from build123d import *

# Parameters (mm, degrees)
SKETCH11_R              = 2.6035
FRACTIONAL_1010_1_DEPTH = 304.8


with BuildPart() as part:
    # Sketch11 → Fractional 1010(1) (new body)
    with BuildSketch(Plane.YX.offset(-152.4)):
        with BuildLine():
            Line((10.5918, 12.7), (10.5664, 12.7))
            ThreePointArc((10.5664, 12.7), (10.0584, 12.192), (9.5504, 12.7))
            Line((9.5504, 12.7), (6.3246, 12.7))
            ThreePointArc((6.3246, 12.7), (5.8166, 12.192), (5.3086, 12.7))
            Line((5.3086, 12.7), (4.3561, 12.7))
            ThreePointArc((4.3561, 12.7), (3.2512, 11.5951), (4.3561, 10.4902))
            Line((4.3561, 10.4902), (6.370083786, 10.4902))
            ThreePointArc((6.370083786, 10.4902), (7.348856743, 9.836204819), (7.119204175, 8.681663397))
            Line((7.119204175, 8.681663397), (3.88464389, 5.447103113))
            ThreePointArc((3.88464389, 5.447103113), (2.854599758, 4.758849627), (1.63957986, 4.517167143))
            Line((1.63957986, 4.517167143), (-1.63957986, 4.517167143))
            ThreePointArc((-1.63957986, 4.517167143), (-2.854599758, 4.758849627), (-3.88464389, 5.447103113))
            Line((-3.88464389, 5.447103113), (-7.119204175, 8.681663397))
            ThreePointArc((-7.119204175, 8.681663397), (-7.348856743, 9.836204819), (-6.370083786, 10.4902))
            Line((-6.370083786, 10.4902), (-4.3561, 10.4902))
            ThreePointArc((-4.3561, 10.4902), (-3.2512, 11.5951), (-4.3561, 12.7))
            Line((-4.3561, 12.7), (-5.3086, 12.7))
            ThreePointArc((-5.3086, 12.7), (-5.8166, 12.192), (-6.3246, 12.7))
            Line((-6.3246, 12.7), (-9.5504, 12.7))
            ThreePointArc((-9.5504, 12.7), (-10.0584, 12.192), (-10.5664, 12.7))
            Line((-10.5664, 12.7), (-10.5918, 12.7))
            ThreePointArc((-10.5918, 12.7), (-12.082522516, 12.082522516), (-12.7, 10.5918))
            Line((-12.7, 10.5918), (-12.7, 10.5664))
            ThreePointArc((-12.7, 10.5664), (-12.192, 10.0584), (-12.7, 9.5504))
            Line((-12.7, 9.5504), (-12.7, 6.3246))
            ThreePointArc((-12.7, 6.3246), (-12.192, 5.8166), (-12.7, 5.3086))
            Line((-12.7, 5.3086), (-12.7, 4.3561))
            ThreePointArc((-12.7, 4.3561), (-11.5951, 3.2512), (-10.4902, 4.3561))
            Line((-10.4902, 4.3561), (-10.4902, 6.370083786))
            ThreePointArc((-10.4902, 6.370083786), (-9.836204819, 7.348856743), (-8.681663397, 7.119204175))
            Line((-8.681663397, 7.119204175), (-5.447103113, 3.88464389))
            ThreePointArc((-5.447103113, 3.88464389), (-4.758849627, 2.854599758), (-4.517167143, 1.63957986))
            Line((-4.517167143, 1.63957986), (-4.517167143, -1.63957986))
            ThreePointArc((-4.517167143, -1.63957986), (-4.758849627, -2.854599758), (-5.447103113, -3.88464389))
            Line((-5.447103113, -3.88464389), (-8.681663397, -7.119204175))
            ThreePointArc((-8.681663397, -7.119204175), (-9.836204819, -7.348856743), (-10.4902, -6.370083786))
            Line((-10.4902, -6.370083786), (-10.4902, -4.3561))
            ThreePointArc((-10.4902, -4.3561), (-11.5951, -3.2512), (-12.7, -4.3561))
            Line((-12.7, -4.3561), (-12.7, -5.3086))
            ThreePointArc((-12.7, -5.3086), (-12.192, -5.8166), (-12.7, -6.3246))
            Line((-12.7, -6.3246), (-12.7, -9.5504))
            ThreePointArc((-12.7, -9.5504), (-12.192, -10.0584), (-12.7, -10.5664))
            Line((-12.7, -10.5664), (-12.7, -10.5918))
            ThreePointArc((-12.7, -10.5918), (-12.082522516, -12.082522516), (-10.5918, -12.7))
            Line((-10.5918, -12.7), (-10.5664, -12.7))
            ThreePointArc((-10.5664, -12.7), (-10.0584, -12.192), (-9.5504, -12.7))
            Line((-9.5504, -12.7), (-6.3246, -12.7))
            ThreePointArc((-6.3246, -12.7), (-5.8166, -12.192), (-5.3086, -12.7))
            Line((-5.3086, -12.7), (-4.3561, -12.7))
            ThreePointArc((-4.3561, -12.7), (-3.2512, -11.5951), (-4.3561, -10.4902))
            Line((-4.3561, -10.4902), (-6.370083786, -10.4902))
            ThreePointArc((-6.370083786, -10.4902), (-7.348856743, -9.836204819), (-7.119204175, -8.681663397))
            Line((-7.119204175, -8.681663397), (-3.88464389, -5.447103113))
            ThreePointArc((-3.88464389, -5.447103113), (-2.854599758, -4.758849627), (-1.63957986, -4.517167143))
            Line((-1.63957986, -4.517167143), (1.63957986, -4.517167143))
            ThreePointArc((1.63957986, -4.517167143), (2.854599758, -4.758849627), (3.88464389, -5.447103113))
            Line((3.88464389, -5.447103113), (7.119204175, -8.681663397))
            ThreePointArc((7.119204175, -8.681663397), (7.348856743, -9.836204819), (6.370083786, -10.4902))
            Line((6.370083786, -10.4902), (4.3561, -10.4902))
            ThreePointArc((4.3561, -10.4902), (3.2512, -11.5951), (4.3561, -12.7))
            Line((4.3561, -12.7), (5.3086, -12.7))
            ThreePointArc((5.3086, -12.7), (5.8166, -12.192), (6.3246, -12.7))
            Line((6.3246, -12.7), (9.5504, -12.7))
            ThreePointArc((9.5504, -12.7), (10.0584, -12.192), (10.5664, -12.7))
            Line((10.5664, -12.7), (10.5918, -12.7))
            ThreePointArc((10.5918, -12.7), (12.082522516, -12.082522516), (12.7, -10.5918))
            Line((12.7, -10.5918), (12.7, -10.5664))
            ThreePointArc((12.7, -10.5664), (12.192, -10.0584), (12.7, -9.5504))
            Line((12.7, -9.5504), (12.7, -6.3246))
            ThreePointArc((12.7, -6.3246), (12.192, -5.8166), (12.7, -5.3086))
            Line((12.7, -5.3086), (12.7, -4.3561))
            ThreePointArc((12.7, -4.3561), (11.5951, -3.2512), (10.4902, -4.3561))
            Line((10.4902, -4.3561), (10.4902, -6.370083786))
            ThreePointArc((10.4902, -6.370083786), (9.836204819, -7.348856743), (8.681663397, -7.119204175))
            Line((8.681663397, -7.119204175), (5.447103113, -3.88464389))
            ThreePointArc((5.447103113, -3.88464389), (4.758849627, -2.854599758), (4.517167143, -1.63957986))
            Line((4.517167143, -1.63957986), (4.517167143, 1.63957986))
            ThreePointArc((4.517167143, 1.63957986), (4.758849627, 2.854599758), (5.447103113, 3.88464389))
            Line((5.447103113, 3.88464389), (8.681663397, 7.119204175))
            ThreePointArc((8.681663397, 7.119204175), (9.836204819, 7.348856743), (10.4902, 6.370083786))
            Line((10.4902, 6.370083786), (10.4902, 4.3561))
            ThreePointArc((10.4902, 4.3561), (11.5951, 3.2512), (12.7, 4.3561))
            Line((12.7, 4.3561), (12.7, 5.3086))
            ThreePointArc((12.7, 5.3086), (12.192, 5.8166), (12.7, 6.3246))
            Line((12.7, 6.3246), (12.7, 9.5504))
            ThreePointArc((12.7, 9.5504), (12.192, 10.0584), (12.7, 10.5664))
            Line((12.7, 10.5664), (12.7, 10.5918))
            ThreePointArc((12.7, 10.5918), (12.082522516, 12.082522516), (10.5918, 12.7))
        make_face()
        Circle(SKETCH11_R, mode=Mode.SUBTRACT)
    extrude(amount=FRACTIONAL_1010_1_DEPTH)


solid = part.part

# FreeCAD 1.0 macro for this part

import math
import FreeCAD as App
import Part
import Sketcher
Q = App.Units.Quantity

doc = App.newDocument("Part")
params = doc.addObject("Spreadsheet::Sheet", "Params")
for row, (alias, value) in enumerate([
    ("sketch1_radius", "0.02 in"),
    ("sketch1_diameter", "0.205 in"),
    ("sketch1_radius2", "0.125 in"),
    ("sketch1_radius3", "0.083 in"),
    ("sketch1_width", "0.001 in"),
    ("pad1_length", "12 in"),
], start=1):
    params.set(f"A{row}", alias)
    params.set(f"B{row}", "=" + value)
    params.setAlias(f"B{row}", alias)

body = doc.addObject("PartDesign::Body", "Body")

sketch1 = body.newObject("Sketcher::SketchObject", "Sketch")
sketch1.AttachmentSupport = (doc.getObject("XY_Plane"), [""])
sketch1.MapMode = "FlatFace"
sketch1.AttachmentOffset = App.Placement(App.Vector(0, 0, 6 * 25.4), App.Rotation())
sketch1.addGeometry(Part.LineSegment(App.Vector(12.7, 10.592, 0), App.Vector(12.7, 10.566, 0)), False)
sketch1.addGeometry(Part.ArcOfCircle(Part.Circle(App.Vector(12.7, 10.058, 0), App.Vector(0, 0, 1), 0.508), math.radians(90), math.radians(270)), False)
sketch1.addGeometry(Part.LineSegment(App.Vector(12.7, 9.55, 0), App.Vector(12.7, 6.325, 0)), False)
sketch1.addGeometry(Part.ArcOfCircle(Part.Circle(App.Vector(12.7, 5.817, 0), App.Vector(0, 0, 1), 0.508), math.radians(90), math.radians(270)), False)
sketch1.addGeometry(Part.LineSegment(App.Vector(12.7, 5.309, 0), App.Vector(12.7, 4.356, 0)), False)
sketch1.addGeometry(Part.ArcOfCircle(Part.Circle(App.Vector(11.595, 4.356, 0), App.Vector(0, 0, 1), 1.105), math.radians(180), math.radians(360)), False)
sketch1.addGeometry(Part.LineSegment(App.Vector(10.49, 4.356, 0), App.Vector(10.49, 6.37, 0)), False)
sketch1.addGeometry(Part.ArcOfCircle(Part.Circle(App.Vector(9.431, 6.37, 0), App.Vector(0, 0, 1), 1.059), math.radians(0), math.radians(135)), False)
sketch1.addGeometry(Part.LineSegment(App.Vector(8.682, 7.119, 0), App.Vector(5.447, 3.885, 0)), False)
sketch1.addGeometry(Part.ArcOfCircle(Part.Circle(App.Vector(7.692, 1.64, 0), App.Vector(0, 0, 1), 3.175), math.radians(135), math.radians(180)), False)
sketch1.addGeometry(Part.LineSegment(App.Vector(4.517, 1.64, 0), App.Vector(4.517, -1.64, 0)), False)
sketch1.addGeometry(Part.ArcOfCircle(Part.Circle(App.Vector(7.692, -1.64, 0), App.Vector(0, 0, 1), 3.175), math.radians(180), math.radians(225)), False)
sketch1.addGeometry(Part.LineSegment(App.Vector(5.447, -3.885, 0), App.Vector(8.682, -7.119, 0)), False)
sketch1.addGeometry(Part.ArcOfCircle(Part.Circle(App.Vector(9.431, -6.37, 0), App.Vector(0, 0, 1), 1.059), math.radians(-135), math.radians(0)), False)
sketch1.addGeometry(Part.LineSegment(App.Vector(10.49, -6.37, 0), App.Vector(10.49, -4.356, 0)), False)
sketch1.addGeometry(Part.ArcOfCircle(Part.Circle(App.Vector(11.595, -4.356, 0), App.Vector(0, 0, 1), 1.105), math.radians(0), math.radians(180)), False)
sketch1.addGeometry(Part.LineSegment(App.Vector(12.7, -4.356, 0), App.Vector(12.7, -5.309, 0)), False)
sketch1.addGeometry(Part.ArcOfCircle(Part.Circle(App.Vector(12.7, -5.817, 0), App.Vector(0, 0, 1), 0.508), math.radians(90), math.radians(270)), False)
sketch1.addGeometry(Part.LineSegment(App.Vector(12.7, -6.325, 0), App.Vector(12.7, -9.55, 0)), False)
sketch1.addGeometry(Part.ArcOfCircle(Part.Circle(App.Vector(12.7, -10.058, 0), App.Vector(0, 0, 1), 0.508), math.radians(90), math.radians(270)), False)
sketch1.addGeometry(Part.LineSegment(App.Vector(12.7, -10.566, 0), App.Vector(12.7, -10.592, 0)), False)
sketch1.addGeometry(Part.ArcOfCircle(Part.Circle(App.Vector(10.592, -10.592, 0), App.Vector(0, 0, 1), 2.108), math.radians(-90), math.radians(0)), False)
sketch1.addGeometry(Part.LineSegment(App.Vector(10.592, -12.7, 0), App.Vector(10.566, -12.7, 0)), False)
sketch1.addGeometry(Part.ArcOfCircle(Part.Circle(App.Vector(10.058, -12.7, 0), App.Vector(0, 0, 1), 0.508), math.radians(0), math.radians(180)), False)
sketch1.addGeometry(Part.LineSegment(App.Vector(9.55, -12.7, 0), App.Vector(6.325, -12.7, 0)), False)
sketch1.addGeometry(Part.ArcOfCircle(Part.Circle(App.Vector(5.817, -12.7, 0), App.Vector(0, 0, 1), 0.508), math.radians(0), math.radians(180)), False)
sketch1.addGeometry(Part.LineSegment(App.Vector(5.309, -12.7, 0), App.Vector(4.356, -12.7, 0)), False)
sketch1.addGeometry(Part.ArcOfCircle(Part.Circle(App.Vector(4.356, -11.595, 0), App.Vector(0, 0, 1), 1.105), math.radians(90), math.radians(270)), False)
sketch1.addGeometry(Part.LineSegment(App.Vector(4.356, -10.49, 0), App.Vector(6.37, -10.49, 0)), False)
sketch1.addGeometry(Part.ArcOfCircle(Part.Circle(App.Vector(6.37, -9.431, 0), App.Vector(0, 0, 1), 1.059), math.radians(-90), math.radians(45)), False)
sketch1.addGeometry(Part.LineSegment(App.Vector(7.119, -8.682, 0), App.Vector(3.885, -5.447, 0)), False)
sketch1.addGeometry(Part.ArcOfCircle(Part.Circle(App.Vector(1.64, -7.692, 0), App.Vector(0, 0, 1), 3.175), math.radians(45), math.radians(90)), False)
sketch1.addGeometry(Part.LineSegment(App.Vector(1.64, -4.517, 0), App.Vector(-1.64, -4.517, 0)), False)
sketch1.addGeometry(Part.ArcOfCircle(Part.Circle(App.Vector(-1.64, -7.692, 0), App.Vector(0, 0, 1), 3.175), math.radians(90), math.radians(135)), False)
sketch1.addGeometry(Part.LineSegment(App.Vector(-3.885, -5.447, 0), App.Vector(-7.119, -8.682, 0)), False)
sketch1.addGeometry(Part.ArcOfCircle(Part.Circle(App.Vector(-6.37, -9.431, 0), App.Vector(0, 0, 1), 1.059), math.radians(135), math.radians(270)), False)
sketch1.addGeometry(Part.LineSegment(App.Vector(-6.37, -10.49, 0), App.Vector(-4.356, -10.49, 0)), False)
sketch1.addGeometry(Part.ArcOfCircle(Part.Circle(App.Vector(-4.356, -11.595, 0), App.Vector(0, 0, 1), 1.105), math.radians(-90), math.radians(90)), False)
sketch1.addGeometry(Part.LineSegment(App.Vector(-4.356, -12.7, 0), App.Vector(-5.309, -12.7, 0)), False)
sketch1.addGeometry(Part.ArcOfCircle(Part.Circle(App.Vector(-5.817, -12.7, 0), App.Vector(0, 0, 1), 0.508), math.radians(0), math.radians(180)), False)
sketch1.addGeometry(Part.LineSegment(App.Vector(-6.325, -12.7, 0), App.Vector(-9.55, -12.7, 0)), False)
sketch1.addGeometry(Part.ArcOfCircle(Part.Circle(App.Vector(-10.058, -12.7, 0), App.Vector(0, 0, 1), 0.508), math.radians(0), math.radians(180)), False)
sketch1.addGeometry(Part.LineSegment(App.Vector(-10.566, -12.7, 0), App.Vector(-10.592, -12.7, 0)), False)
sketch1.addGeometry(Part.ArcOfCircle(Part.Circle(App.Vector(-10.592, -10.592, 0), App.Vector(0, 0, 1), 2.108), math.radians(180), math.radians(270)), False)
sketch1.addGeometry(Part.LineSegment(App.Vector(-12.7, -10.592, 0), App.Vector(-12.7, -10.566, 0)), False)
sketch1.addGeometry(Part.ArcOfCircle(Part.Circle(App.Vector(-12.7, -10.058, 0), App.Vector(0, 0, 1), 0.508), math.radians(-90), math.radians(90)), False)
sketch1.addGeometry(Part.LineSegment(App.Vector(-12.7, -9.55, 0), App.Vector(-12.7, -6.325, 0)), False)
sketch1.addGeometry(Part.ArcOfCircle(Part.Circle(App.Vector(-12.7, -5.817, 0), App.Vector(0, 0, 1), 0.508), math.radians(-90), math.radians(90)), False)
sketch1.addGeometry(Part.LineSegment(App.Vector(-12.7, -5.309, 0), App.Vector(-12.7, -4.356, 0)), False)
sketch1.addGeometry(Part.ArcOfCircle(Part.Circle(App.Vector(-11.595, -4.356, 0), App.Vector(0, 0, 1), 1.105), math.radians(0), math.radians(180)), False)
sketch1.addGeometry(Part.LineSegment(App.Vector(-10.49, -4.356, 0), App.Vector(-10.49, -6.37, 0)), False)
sketch1.addGeometry(Part.ArcOfCircle(Part.Circle(App.Vector(-9.431, -6.37, 0), App.Vector(0, 0, 1), 1.059), math.radians(180), math.radians(315)), False)
sketch1.addGeometry(Part.LineSegment(App.Vector(-8.682, -7.119, 0), App.Vector(-5.447, -3.885, 0)), False)
sketch1.addGeometry(Part.ArcOfCircle(Part.Circle(App.Vector(-7.692, -1.64, 0), App.Vector(0, 0, 1), 3.175), math.radians(-45), math.radians(0)), False)
sketch1.addGeometry(Part.LineSegment(App.Vector(-4.517, -1.64, 0), App.Vector(-4.517, 1.64, 0)), False)
sketch1.addGeometry(Part.ArcOfCircle(Part.Circle(App.Vector(-7.692, 1.64, 0), App.Vector(0, 0, 1), 3.175), math.radians(0), math.radians(45)), False)
sketch1.addGeometry(Part.LineSegment(App.Vector(-5.447, 3.885, 0), App.Vector(-8.682, 7.119, 0)), False)
sketch1.addGeometry(Part.ArcOfCircle(Part.Circle(App.Vector(-9.431, 6.37, 0), App.Vector(0, 0, 1), 1.059), math.radians(45), math.radians(180)), False)
sketch1.addGeometry(Part.LineSegment(App.Vector(-10.49, 6.37, 0), App.Vector(-10.49, 4.356, 0)), False)
sketch1.addGeometry(Part.ArcOfCircle(Part.Circle(App.Vector(-11.595, 4.356, 0), App.Vector(0, 0, 1), 1.105), math.radians(180), math.radians(360)), False)
sketch1.addGeometry(Part.LineSegment(App.Vector(-12.7, 4.356, 0), App.Vector(-12.7, 5.309, 0)), False)
sketch1.addGeometry(Part.ArcOfCircle(Part.Circle(App.Vector(-12.7, 5.817, 0), App.Vector(0, 0, 1), 0.508), math.radians(-90), math.radians(90)), False)
sketch1.addGeometry(Part.LineSegment(App.Vector(-12.7, 6.325, 0), App.Vector(-12.7, 9.55, 0)), False)
sketch1.addGeometry(Part.ArcOfCircle(Part.Circle(App.Vector(-12.7, 10.058, 0), App.Vector(0, 0, 1), 0.508), math.radians(-90), math.radians(90)), False)
sketch1.addGeometry(Part.LineSegment(App.Vector(-12.7, 10.566, 0), App.Vector(-12.7, 10.592, 0)), False)
sketch1.addGeometry(Part.ArcOfCircle(Part.Circle(App.Vector(-10.592, 10.592, 0), App.Vector(0, 0, 1), 2.108), math.radians(90), math.radians(180)), False)
sketch1.addGeometry(Part.LineSegment(App.Vector(-10.592, 12.7, 0), App.Vector(-10.566, 12.7, 0)), False)
sketch1.addGeometry(Part.ArcOfCircle(Part.Circle(App.Vector(-10.058, 12.7, 0), App.Vector(0, 0, 1), 0.508), math.radians(180), math.radians(360)), False)
sketch1.addGeometry(Part.LineSegment(App.Vector(-9.55, 12.7, 0), App.Vector(-6.325, 12.7, 0)), False)
sketch1.addGeometry(Part.ArcOfCircle(Part.Circle(App.Vector(-5.817, 12.7, 0), App.Vector(0, 0, 1), 0.508), math.radians(180), math.radians(360)), False)
sketch1.addGeometry(Part.LineSegment(App.Vector(-5.309, 12.7, 0), App.Vector(-4.356, 12.7, 0)), False)
sketch1.addGeometry(Part.ArcOfCircle(Part.Circle(App.Vector(-4.356, 11.595, 0), App.Vector(0, 0, 1), 1.105), math.radians(-90), math.radians(90)), False)
sketch1.addGeometry(Part.LineSegment(App.Vector(-4.356, 10.49, 0), App.Vector(-6.37, 10.49, 0)), False)
sketch1.addGeometry(Part.ArcOfCircle(Part.Circle(App.Vector(-6.37, 9.431, 0), App.Vector(0, 0, 1), 1.059), math.radians(90), math.radians(225)), False)
sketch1.addGeometry(Part.LineSegment(App.Vector(-7.119, 8.682, 0), App.Vector(-3.885, 5.447, 0)), False)
sketch1.addGeometry(Part.ArcOfCircle(Part.Circle(App.Vector(-1.64, 7.692, 0), App.Vector(0, 0, 1), 3.175), math.radians(-135), math.radians(-90)), False)
sketch1.addGeometry(Part.LineSegment(App.Vector(-1.64, 4.517, 0), App.Vector(1.64, 4.517, 0)), False)
sketch1.addGeometry(Part.ArcOfCircle(Part.Circle(App.Vector(1.64, 7.692, 0), App.Vector(0, 0, 1), 3.175), math.radians(-90), math.radians(-45)), False)
sketch1.addGeometry(Part.LineSegment(App.Vector(3.885, 5.447, 0), App.Vector(7.119, 8.682, 0)), False)
sketch1.addGeometry(Part.ArcOfCircle(Part.Circle(App.Vector(6.37, 9.431, 0), App.Vector(0, 0, 1), 1.059), math.radians(-45), math.radians(90)), False)
sketch1.addGeometry(Part.LineSegment(App.Vector(6.37, 10.49, 0), App.Vector(4.356, 10.49, 0)), False)
sketch1.addGeometry(Part.ArcOfCircle(Part.Circle(App.Vector(4.356, 11.595, 0), App.Vector(0, 0, 1), 1.105), math.radians(90), math.radians(270)), False)
sketch1.addGeometry(Part.LineSegment(App.Vector(4.356, 12.7, 0), App.Vector(5.309, 12.7, 0)), False)
sketch1.addGeometry(Part.ArcOfCircle(Part.Circle(App.Vector(5.817, 12.7, 0), App.Vector(0, 0, 1), 0.508), math.radians(180), math.radians(360)), False)
sketch1.addGeometry(Part.LineSegment(App.Vector(6.325, 12.7, 0), App.Vector(9.55, 12.7, 0)), False)
sketch1.addGeometry(Part.ArcOfCircle(Part.Circle(App.Vector(10.058, 12.7, 0), App.Vector(0, 0, 1), 0.508), math.radians(180), math.radians(360)), False)
sketch1.addGeometry(Part.LineSegment(App.Vector(10.566, 12.7, 0), App.Vector(10.592, 12.7, 0)), False)
sketch1.addGeometry(Part.ArcOfCircle(Part.Circle(App.Vector(10.592, 10.592, 0), App.Vector(0, 0, 1), 2.108), math.radians(0), math.radians(90)), False)
sketch1.addGeometry(Part.Circle(App.Vector(0, 0, 0), App.Vector(0, 0, 1), 2.603), False)
sketch1.addConstraint(Sketcher.Constraint("Coincident", 0, 2, 1, 1))
sketch1.addConstraint(Sketcher.Constraint("Coincident", 1, 2, 2, 1))
sketch1.addConstraint(Sketcher.Constraint("Coincident", 2, 2, 3, 1))
sketch1.addConstraint(Sketcher.Constraint("Coincident", 3, 2, 4, 1))
sketch1.addConstraint(Sketcher.Constraint("Tangent", 4, 2, 5, 2))
sketch1.addConstraint(Sketcher.Constraint("Tangent", 5, 1, 6, 1))
sketch1.addConstraint(Sketcher.Constraint("Tangent", 6, 2, 7, 1))
sketch1.addConstraint(Sketcher.Constraint("Tangent", 7, 2, 8, 1))
sketch1.addConstraint(Sketcher.Constraint("Tangent", 8, 2, 9, 1))
sketch1.addConstraint(Sketcher.Constraint("Tangent", 9, 2, 10, 1))
sketch1.addConstraint(Sketcher.Constraint("Tangent", 10, 2, 11, 1))
sketch1.addConstraint(Sketcher.Constraint("Tangent", 11, 2, 12, 1))
sketch1.addConstraint(Sketcher.Constraint("Tangent", 12, 2, 13, 1))
sketch1.addConstraint(Sketcher.Constraint("Tangent", 13, 2, 14, 1))
sketch1.addConstraint(Sketcher.Constraint("Tangent", 14, 2, 15, 2))
sketch1.addConstraint(Sketcher.Constraint("Tangent", 15, 1, 16, 1))
sketch1.addConstraint(Sketcher.Constraint("Coincident", 16, 2, 17, 1))
sketch1.addConstraint(Sketcher.Constraint("Coincident", 17, 2, 18, 1))
sketch1.addConstraint(Sketcher.Constraint("Coincident", 18, 2, 19, 1))
sketch1.addConstraint(Sketcher.Constraint("Coincident", 19, 2, 20, 1))
sketch1.addConstraint(Sketcher.Constraint("Tangent", 20, 2, 21, 2))
sketch1.addConstraint(Sketcher.Constraint("Tangent", 21, 1, 22, 1))
sketch1.addConstraint(Sketcher.Constraint("Coincident", 22, 2, 23, 1))
sketch1.addConstraint(Sketcher.Constraint("Coincident", 23, 2, 24, 1))
sketch1.addConstraint(Sketcher.Constraint("Coincident", 24, 2, 25, 1))
sketch1.addConstraint(Sketcher.Constraint("Coincident", 25, 2, 26, 1))
sketch1.addConstraint(Sketcher.Constraint("Tangent", 26, 2, 27, 2))
sketch1.addConstraint(Sketcher.Constraint("Tangent", 27, 1, 28, 1))
sketch1.addConstraint(Sketcher.Constraint("Tangent", 28, 2, 29, 1))
sketch1.addConstraint(Sketcher.Constraint("Tangent", 29, 2, 30, 1))
sketch1.addConstraint(Sketcher.Constraint("Tangent", 30, 2, 31, 1))
sketch1.addConstraint(Sketcher.Constraint("Tangent", 31, 2, 32, 1))
sketch1.addConstraint(Sketcher.Constraint("Tangent", 32, 2, 33, 1))
sketch1.addConstraint(Sketcher.Constraint("Tangent", 33, 2, 34, 1))
sketch1.addConstraint(Sketcher.Constraint("Tangent", 34, 2, 35, 1))
sketch1.addConstraint(Sketcher.Constraint("Tangent", 35, 2, 36, 1))
sketch1.addConstraint(Sketcher.Constraint("Tangent", 36, 2, 37, 2))
sketch1.addConstraint(Sketcher.Constraint("Tangent", 37, 1, 38, 1))
sketch1.addConstraint(Sketcher.Constraint("Coincident", 38, 2, 39, 1))
sketch1.addConstraint(Sketcher.Constraint("Coincident", 39, 2, 40, 1))
sketch1.addConstraint(Sketcher.Constraint("Coincident", 40, 2, 41, 1))
sketch1.addConstraint(Sketcher.Constraint("Coincident", 41, 2, 42, 1))
sketch1.addConstraint(Sketcher.Constraint("Tangent", 42, 2, 43, 2))
sketch1.addConstraint(Sketcher.Constraint("Tangent", 43, 1, 44, 1))
sketch1.addConstraint(Sketcher.Constraint("Coincident", 44, 2, 45, 1))
sketch1.addConstraint(Sketcher.Constraint("Coincident", 45, 2, 46, 1))
sketch1.addConstraint(Sketcher.Constraint("Coincident", 46, 2, 47, 1))
sketch1.addConstraint(Sketcher.Constraint("Coincident", 47, 2, 48, 1))
sketch1.addConstraint(Sketcher.Constraint("Tangent", 48, 2, 49, 2))
sketch1.addConstraint(Sketcher.Constraint("Tangent", 49, 1, 50, 1))
sketch1.addConstraint(Sketcher.Constraint("Tangent", 50, 2, 51, 1))
sketch1.addConstraint(Sketcher.Constraint("Tangent", 51, 2, 52, 1))
sketch1.addConstraint(Sketcher.Constraint("Tangent", 52, 2, 53, 1))
sketch1.addConstraint(Sketcher.Constraint("Tangent", 53, 2, 54, 1))
sketch1.addConstraint(Sketcher.Constraint("Tangent", 54, 2, 55, 1))
sketch1.addConstraint(Sketcher.Constraint("Tangent", 55, 2, 56, 1))
sketch1.addConstraint(Sketcher.Constraint("Tangent", 56, 2, 57, 1))
sketch1.addConstraint(Sketcher.Constraint("Tangent", 57, 2, 58, 1))
sketch1.addConstraint(Sketcher.Constraint("Tangent", 58, 2, 59, 2))
sketch1.addConstraint(Sketcher.Constraint("Tangent", 59, 1, 60, 1))
sketch1.addConstraint(Sketcher.Constraint("Coincident", 60, 2, 61, 1))
sketch1.addConstraint(Sketcher.Constraint("Coincident", 61, 2, 62, 1))
sketch1.addConstraint(Sketcher.Constraint("Coincident", 62, 2, 63, 1))
sketch1.addConstraint(Sketcher.Constraint("Coincident", 63, 2, 64, 1))
sketch1.addConstraint(Sketcher.Constraint("Tangent", 64, 2, 65, 2))
sketch1.addConstraint(Sketcher.Constraint("Tangent", 65, 1, 66, 1))
sketch1.addConstraint(Sketcher.Constraint("Coincident", 66, 2, 67, 1))
sketch1.addConstraint(Sketcher.Constraint("Coincident", 67, 2, 68, 1))
sketch1.addConstraint(Sketcher.Constraint("Coincident", 68, 2, 69, 1))
sketch1.addConstraint(Sketcher.Constraint("Coincident", 69, 2, 70, 1))
sketch1.addConstraint(Sketcher.Constraint("Tangent", 70, 2, 71, 2))
sketch1.addConstraint(Sketcher.Constraint("Tangent", 71, 1, 72, 1))
sketch1.addConstraint(Sketcher.Constraint("Tangent", 72, 2, 73, 1))
sketch1.addConstraint(Sketcher.Constraint("Tangent", 73, 2, 74, 1))
sketch1.addConstraint(Sketcher.Constraint("Tangent", 74, 2, 75, 1))
sketch1.addConstraint(Sketcher.Constraint("Tangent", 75, 2, 76, 1))
sketch1.addConstraint(Sketcher.Constraint("Tangent", 76, 2, 77, 1))
sketch1.addConstraint(Sketcher.Constraint("Tangent", 77, 2, 78, 1))
sketch1.addConstraint(Sketcher.Constraint("Tangent", 78, 2, 79, 1))
sketch1.addConstraint(Sketcher.Constraint("Tangent", 79, 2, 80, 1))
sketch1.addConstraint(Sketcher.Constraint("Tangent", 80, 2, 81, 2))
sketch1.addConstraint(Sketcher.Constraint("Tangent", 81, 1, 82, 1))
sketch1.addConstraint(Sketcher.Constraint("Coincident", 82, 2, 83, 1))
sketch1.addConstraint(Sketcher.Constraint("Coincident", 83, 2, 84, 1))
sketch1.addConstraint(Sketcher.Constraint("Coincident", 84, 2, 85, 1))
sketch1.addConstraint(Sketcher.Constraint("Coincident", 85, 2, 86, 1))
sketch1.addConstraint(Sketcher.Constraint("Tangent", 86, 2, 87, 2))
sketch1.addConstraint(Sketcher.Constraint("Tangent", 87, 1, 0, 1))
sketch1.addConstraint(Sketcher.Constraint("Vertical", 0))
sketch1.addConstraint(Sketcher.Constraint("Vertical", 2))
sketch1.addConstraint(Sketcher.Constraint("Vertical", 4))
sketch1.addConstraint(Sketcher.Constraint("Vertical", 6))
sketch1.addConstraint(Sketcher.Constraint("Vertical", 10))
sketch1.addConstraint(Sketcher.Constraint("Vertical", 14))
sketch1.addConstraint(Sketcher.Constraint("Vertical", 16))
sketch1.addConstraint(Sketcher.Constraint("Vertical", 18))
sketch1.addConstraint(Sketcher.Constraint("Vertical", 20))
sketch1.addConstraint(Sketcher.Constraint("Horizontal", 22))
sketch1.addConstraint(Sketcher.Constraint("Horizontal", 24))
sketch1.addConstraint(Sketcher.Constraint("Horizontal", 26))
sketch1.addConstraint(Sketcher.Constraint("Horizontal", 28))
sketch1.addConstraint(Sketcher.Constraint("Horizontal", 32))
sketch1.addConstraint(Sketcher.Constraint("Horizontal", 36))
sketch1.addConstraint(Sketcher.Constraint("Horizontal", 38))
sketch1.addConstraint(Sketcher.Constraint("Horizontal", 40))
sketch1.addConstraint(Sketcher.Constraint("Horizontal", 42))
sketch1.addConstraint(Sketcher.Constraint("Vertical", 44))
sketch1.addConstraint(Sketcher.Constraint("Vertical", 46))
sketch1.addConstraint(Sketcher.Constraint("Vertical", 48))
sketch1.addConstraint(Sketcher.Constraint("Vertical", 50))
sketch1.addConstraint(Sketcher.Constraint("Vertical", 54))
sketch1.addConstraint(Sketcher.Constraint("Vertical", 58))
sketch1.addConstraint(Sketcher.Constraint("Vertical", 60))
sketch1.addConstraint(Sketcher.Constraint("Vertical", 62))
sketch1.addConstraint(Sketcher.Constraint("Vertical", 64))
sketch1.addConstraint(Sketcher.Constraint("Horizontal", 66))
sketch1.addConstraint(Sketcher.Constraint("Horizontal", 68))
sketch1.addConstraint(Sketcher.Constraint("Horizontal", 70))
sketch1.addConstraint(Sketcher.Constraint("Horizontal", 72))
sketch1.addConstraint(Sketcher.Constraint("Horizontal", 76))
sketch1.addConstraint(Sketcher.Constraint("Horizontal", 80))
sketch1.addConstraint(Sketcher.Constraint("Horizontal", 82))
sketch1.addConstraint(Sketcher.Constraint("Horizontal", 84))
sketch1.addConstraint(Sketcher.Constraint("Horizontal", 86))
sketch1.addConstraint(Sketcher.Constraint("Coincident", 88, 3, -1, 1))
sketch1.addConstraint(Sketcher.Constraint("Equal", 1, 3))
sketch1.addConstraint(Sketcher.Constraint("Equal", 9, 11))
sketch1.addConstraint(Sketcher.Constraint("Equal", 7, 13))
sketch1.addConstraint(Sketcher.Constraint("Equal", 5, 15))
sketch1.addConstraint(Sketcher.Constraint("Equal", 3, 17))
sketch1.addConstraint(Sketcher.Constraint("Equal", 17, 19))
sketch1.addConstraint(Sketcher.Constraint("Equal", 19, 23))
sketch1.addConstraint(Sketcher.Constraint("Equal", 23, 25))
sketch1.addConstraint(Sketcher.Constraint("Equal", 15, 27))
sketch1.addConstraint(Sketcher.Constraint("Equal", 13, 29))
sketch1.addConstraint(Sketcher.Constraint("Equal", 11, 31))
sketch1.addConstraint(Sketcher.Constraint("Equal", 31, 33))
sketch1.addConstraint(Sketcher.Constraint("Equal", 29, 35))
sketch1.addConstraint(Sketcher.Constraint("Equal", 27, 37))
sketch1.addConstraint(Sketcher.Constraint("Equal", 25, 39))
sketch1.addConstraint(Sketcher.Constraint("Equal", 39, 41))
sketch1.addConstraint(Sketcher.Constraint("Equal", 21, 43))
sketch1.addConstraint(Sketcher.Constraint("Equal", 41, 45))
sketch1.addConstraint(Sketcher.Constraint("Equal", 45, 47))
sketch1.addConstraint(Sketcher.Constraint("Equal", 37, 49))
sketch1.addConstraint(Sketcher.Constraint("Equal", 35, 51))
sketch1.addConstraint(Sketcher.Constraint("Equal", 33, 53))
sketch1.addConstraint(Sketcher.Constraint("Equal", 53, 55))
sketch1.addConstraint(Sketcher.Constraint("Equal", 51, 57))
sketch1.addConstraint(Sketcher.Constraint("Equal", 49, 59))
sketch1.addConstraint(Sketcher.Constraint("Equal", 47, 61))
sketch1.addConstraint(Sketcher.Constraint("Equal", 61, 63))
sketch1.addConstraint(Sketcher.Constraint("Equal", 43, 65))
sketch1.addConstraint(Sketcher.Constraint("Equal", 63, 67))
sketch1.addConstraint(Sketcher.Constraint("Equal", 67, 69))
sketch1.addConstraint(Sketcher.Constraint("Equal", 59, 71))
sketch1.addConstraint(Sketcher.Constraint("Equal", 57, 73))
sketch1.addConstraint(Sketcher.Constraint("Equal", 55, 75))
sketch1.addConstraint(Sketcher.Constraint("Equal", 75, 77))
sketch1.addConstraint(Sketcher.Constraint("Equal", 73, 79))
sketch1.addConstraint(Sketcher.Constraint("Equal", 71, 81))
sketch1.addConstraint(Sketcher.Constraint("Equal", 69, 83))
sketch1.addConstraint(Sketcher.Constraint("Equal", 83, 85))
sketch1.addConstraint(Sketcher.Constraint("Equal", 65, 87))
sketch1.addConstraint(Sketcher.Constraint("Symmetric", 1, 3, 45, 3, -1, 1))
sketch1.addConstraint(Sketcher.Constraint("Symmetric", 3, 3, 47, 3, -1, 1))
sketch1.addConstraint(Sketcher.Constraint("Symmetric", 5, 3, 49, 3, -1, 1))
sketch1.addConstraint(Sketcher.Constraint("Symmetric", 9, 3, 53, 3, -1, 1))
sketch1.addConstraint(Sketcher.Constraint("Symmetric", 13, 3, 57, 3, -1, 1))
sketch1.addConstraint(Sketcher.Constraint("Symmetric", 17, 3, 61, 3, -1, 1))
sketch1.addConstraint(Sketcher.Constraint("Symmetric", 19, 3, 63, 3, -1, 1))
sketch1.addConstraint(Sketcher.Constraint("Symmetric", 21, 3, 65, 3, -1, 1))
sketch1.addConstraint(Sketcher.Constraint("Symmetric", 23, 3, 67, 3, -1, 1))
sketch1.addConstraint(Sketcher.Constraint("Symmetric", 25, 3, 69, 3, -1, 1))
sketch1.addConstraint(Sketcher.Constraint("Symmetric", 27, 3, 71, 3, -1, 1))
sketch1.addConstraint(Sketcher.Constraint("Symmetric", 31, 3, 75, 3, -1, 1))
sketch1.addConstraint(Sketcher.Constraint("Symmetric", 35, 3, 79, 3, -1, 1))
sketch1.addConstraint(Sketcher.Constraint("Symmetric", 39, 3, 83, 3, -1, 1))
sketch1.addConstraint(Sketcher.Constraint("Symmetric", 41, 3, 85, 3, -1, 1))
sketch1.addConstraint(Sketcher.Constraint("Symmetric", 43, 3, 87, 3, -1, 1))
sketch1.addConstraint(Sketcher.Constraint("Symmetric", 29, 3, 35, 3, -2))
sketch1.addConstraint(Sketcher.Constraint("Symmetric", 25, 3, 39, 3, -2))
sketch1.addConstraint(Sketcher.Constraint("Symmetric", 23, 3, 41, 3, -2))
sketch1.addConstraint(Sketcher.Constraint("Symmetric", 21, 3, 43, 3, -2))
sketch1.addConstraint(Sketcher.Constraint("Symmetric", 19, 3, 45, 3, -2))
sketch1.addConstraint(Sketcher.Constraint("Symmetric", 17, 3, 47, 3, -2))
sketch1.addConstraint(Sketcher.Constraint("Symmetric", 15, 3, 49, 3, -2))
sketch1.addConstraint(Sketcher.Constraint("Symmetric", 12, 2, 51, 2, -2))
sketch1.addConstraint(Sketcher.Constraint("Symmetric", 8, 2, 55, 2, -2))
sketch1.addConstraint(Sketcher.Constraint("Symmetric", 74, 2, 77, 2, -2))
sketch1.addConstraint(Sketcher.Constraint("Perpendicular", 8, 12))
sketch1.addConstraint(Sketcher.Constraint("Parallel", 12, 30))
sketch1.addConstraint(Sketcher.Constraint("Perpendicular", 30, 34))
sketch1.addConstraint(Sketcher.Constraint("Horizontal", 23, 3, 25, 3))
sketch1.addConstraint(Sketcher.Constraint("Horizontal", 5, 3, 59, 3))
sketch1.addConstraint(Sketcher.Constraint("Horizontal", 41, 3, 21, 1))
sketch1.addConstraint(Sketcher.Constraint("Horizontal", 22, 2, 23, 2))
sketch1.addConstraint(Sketcher.Constraint("Horizontal", 24, 2, 25, 2))
sketch1.addConstraint(Sketcher.Constraint("Horizontal", 38, 2, 39, 2))
sketch1.addConstraint(Sketcher.Constraint("Horizontal", 66, 2, 67, 2))
sketch1.addConstraint(Sketcher.Constraint("Horizontal", 82, 2, 83, 2))
sketch1.addConstraint(Sketcher.Constraint("Vertical", 1, 3, 3, 3))
sketch1.addConstraint(Sketcher.Constraint("Vertical", 37, 3, 71, 3))
sketch1.addConstraint(Sketcher.Constraint("Vertical", 27, 3, 81, 3))
sketch1.addConstraint(Sketcher.Constraint("Vertical", 19, 3, 0, 2))
sketch1.addConstraint(Sketcher.Constraint("Vertical", 0, 2, 1, 2))
sketch1.addConstraint(Sketcher.Constraint("Vertical", 2, 2, 3, 2))
sketch1.addConstraint(Sketcher.Constraint("Vertical", 16, 2, 17, 2))
sketch1.addConstraint(Sketcher.Constraint("Vertical", 44, 2, 45, 2))
sketch1.addConstraint(Sketcher.Constraint("Vertical", 60, 2, 61, 2))
sketch1.addConstraint(Sketcher.Constraint("Equal", 86, 0))
sketch1.addConstraint(Sketcher.Constraint("Equal", 84, 2))
sketch1.addConstraint(Sketcher.Constraint("Equal", 82, 4))
sketch1.addConstraint(Sketcher.Constraint("Equal", 80, 6))
sketch1.addConstraint(Sketcher.Constraint("Equal", 76, 10))
sketch1.addConstraint(Sketcher.Constraint("Equal", 12, 30))
sketch1.addConstraint(Sketcher.Constraint("Radius", 1, Q("0.02 in")))
sketch1.addConstraint(Sketcher.Constraint("Diameter", 88, Q("0.205 in")))
sketch1.addConstraint(Sketcher.Constraint("Radius", 9, Q("0.125 in")))
sketch1.addConstraint(Sketcher.Constraint("Radius", 21, Q("0.083 in")))
sketch1.addConstraint(Sketcher.Constraint("DistanceX", -1, 1, 1, 3, Q("0.5 in")))
sketch1.addConstraint(Sketcher.Constraint("Radius", 5, Q("0.0435 in")))
sketch1.addConstraint(Sketcher.Constraint("DistanceX", 22, 2, 22, 1, Q("0.001 in")))
sketch1.addConstraint(Sketcher.Constraint("DistanceX", 24, 2, 24, 1, Q("0.127 in")))
sketch1.addConstraint(Sketcher.Constraint("DistanceX", 26, 2, 26, 1, Q("0.0375 in")))
sketch1.addConstraint(Sketcher.Constraint("Radius", 7, Q("1.059416 mm")))
sketch1.addConstraint(Sketcher.Constraint("DistanceX", 32, 2, 32, 1, Q("3.27916 mm")))
sketch1.addConstraint(Sketcher.Constraint("Distance", 8, Q("4.574359 mm")))
sketch1.setExpression("Constraints[216]", "Params.sketch1_radius")
sketch1.setExpression("Constraints[217]", "Params.sketch1_diameter")
sketch1.setExpression("Constraints[218]", "Params.sketch1_radius2")
sketch1.setExpression("Constraints[219]", "Params.sketch1_radius3")
sketch1.setExpression("Constraints[222]", "Params.sketch1_width")
pad1 = body.newObject("PartDesign::Pad", "Pad")
pad1.Profile = sketch1
pad1.setExpression("Length", "Params.pad1_length")
pad1.Reversed = True

doc.recompute()
